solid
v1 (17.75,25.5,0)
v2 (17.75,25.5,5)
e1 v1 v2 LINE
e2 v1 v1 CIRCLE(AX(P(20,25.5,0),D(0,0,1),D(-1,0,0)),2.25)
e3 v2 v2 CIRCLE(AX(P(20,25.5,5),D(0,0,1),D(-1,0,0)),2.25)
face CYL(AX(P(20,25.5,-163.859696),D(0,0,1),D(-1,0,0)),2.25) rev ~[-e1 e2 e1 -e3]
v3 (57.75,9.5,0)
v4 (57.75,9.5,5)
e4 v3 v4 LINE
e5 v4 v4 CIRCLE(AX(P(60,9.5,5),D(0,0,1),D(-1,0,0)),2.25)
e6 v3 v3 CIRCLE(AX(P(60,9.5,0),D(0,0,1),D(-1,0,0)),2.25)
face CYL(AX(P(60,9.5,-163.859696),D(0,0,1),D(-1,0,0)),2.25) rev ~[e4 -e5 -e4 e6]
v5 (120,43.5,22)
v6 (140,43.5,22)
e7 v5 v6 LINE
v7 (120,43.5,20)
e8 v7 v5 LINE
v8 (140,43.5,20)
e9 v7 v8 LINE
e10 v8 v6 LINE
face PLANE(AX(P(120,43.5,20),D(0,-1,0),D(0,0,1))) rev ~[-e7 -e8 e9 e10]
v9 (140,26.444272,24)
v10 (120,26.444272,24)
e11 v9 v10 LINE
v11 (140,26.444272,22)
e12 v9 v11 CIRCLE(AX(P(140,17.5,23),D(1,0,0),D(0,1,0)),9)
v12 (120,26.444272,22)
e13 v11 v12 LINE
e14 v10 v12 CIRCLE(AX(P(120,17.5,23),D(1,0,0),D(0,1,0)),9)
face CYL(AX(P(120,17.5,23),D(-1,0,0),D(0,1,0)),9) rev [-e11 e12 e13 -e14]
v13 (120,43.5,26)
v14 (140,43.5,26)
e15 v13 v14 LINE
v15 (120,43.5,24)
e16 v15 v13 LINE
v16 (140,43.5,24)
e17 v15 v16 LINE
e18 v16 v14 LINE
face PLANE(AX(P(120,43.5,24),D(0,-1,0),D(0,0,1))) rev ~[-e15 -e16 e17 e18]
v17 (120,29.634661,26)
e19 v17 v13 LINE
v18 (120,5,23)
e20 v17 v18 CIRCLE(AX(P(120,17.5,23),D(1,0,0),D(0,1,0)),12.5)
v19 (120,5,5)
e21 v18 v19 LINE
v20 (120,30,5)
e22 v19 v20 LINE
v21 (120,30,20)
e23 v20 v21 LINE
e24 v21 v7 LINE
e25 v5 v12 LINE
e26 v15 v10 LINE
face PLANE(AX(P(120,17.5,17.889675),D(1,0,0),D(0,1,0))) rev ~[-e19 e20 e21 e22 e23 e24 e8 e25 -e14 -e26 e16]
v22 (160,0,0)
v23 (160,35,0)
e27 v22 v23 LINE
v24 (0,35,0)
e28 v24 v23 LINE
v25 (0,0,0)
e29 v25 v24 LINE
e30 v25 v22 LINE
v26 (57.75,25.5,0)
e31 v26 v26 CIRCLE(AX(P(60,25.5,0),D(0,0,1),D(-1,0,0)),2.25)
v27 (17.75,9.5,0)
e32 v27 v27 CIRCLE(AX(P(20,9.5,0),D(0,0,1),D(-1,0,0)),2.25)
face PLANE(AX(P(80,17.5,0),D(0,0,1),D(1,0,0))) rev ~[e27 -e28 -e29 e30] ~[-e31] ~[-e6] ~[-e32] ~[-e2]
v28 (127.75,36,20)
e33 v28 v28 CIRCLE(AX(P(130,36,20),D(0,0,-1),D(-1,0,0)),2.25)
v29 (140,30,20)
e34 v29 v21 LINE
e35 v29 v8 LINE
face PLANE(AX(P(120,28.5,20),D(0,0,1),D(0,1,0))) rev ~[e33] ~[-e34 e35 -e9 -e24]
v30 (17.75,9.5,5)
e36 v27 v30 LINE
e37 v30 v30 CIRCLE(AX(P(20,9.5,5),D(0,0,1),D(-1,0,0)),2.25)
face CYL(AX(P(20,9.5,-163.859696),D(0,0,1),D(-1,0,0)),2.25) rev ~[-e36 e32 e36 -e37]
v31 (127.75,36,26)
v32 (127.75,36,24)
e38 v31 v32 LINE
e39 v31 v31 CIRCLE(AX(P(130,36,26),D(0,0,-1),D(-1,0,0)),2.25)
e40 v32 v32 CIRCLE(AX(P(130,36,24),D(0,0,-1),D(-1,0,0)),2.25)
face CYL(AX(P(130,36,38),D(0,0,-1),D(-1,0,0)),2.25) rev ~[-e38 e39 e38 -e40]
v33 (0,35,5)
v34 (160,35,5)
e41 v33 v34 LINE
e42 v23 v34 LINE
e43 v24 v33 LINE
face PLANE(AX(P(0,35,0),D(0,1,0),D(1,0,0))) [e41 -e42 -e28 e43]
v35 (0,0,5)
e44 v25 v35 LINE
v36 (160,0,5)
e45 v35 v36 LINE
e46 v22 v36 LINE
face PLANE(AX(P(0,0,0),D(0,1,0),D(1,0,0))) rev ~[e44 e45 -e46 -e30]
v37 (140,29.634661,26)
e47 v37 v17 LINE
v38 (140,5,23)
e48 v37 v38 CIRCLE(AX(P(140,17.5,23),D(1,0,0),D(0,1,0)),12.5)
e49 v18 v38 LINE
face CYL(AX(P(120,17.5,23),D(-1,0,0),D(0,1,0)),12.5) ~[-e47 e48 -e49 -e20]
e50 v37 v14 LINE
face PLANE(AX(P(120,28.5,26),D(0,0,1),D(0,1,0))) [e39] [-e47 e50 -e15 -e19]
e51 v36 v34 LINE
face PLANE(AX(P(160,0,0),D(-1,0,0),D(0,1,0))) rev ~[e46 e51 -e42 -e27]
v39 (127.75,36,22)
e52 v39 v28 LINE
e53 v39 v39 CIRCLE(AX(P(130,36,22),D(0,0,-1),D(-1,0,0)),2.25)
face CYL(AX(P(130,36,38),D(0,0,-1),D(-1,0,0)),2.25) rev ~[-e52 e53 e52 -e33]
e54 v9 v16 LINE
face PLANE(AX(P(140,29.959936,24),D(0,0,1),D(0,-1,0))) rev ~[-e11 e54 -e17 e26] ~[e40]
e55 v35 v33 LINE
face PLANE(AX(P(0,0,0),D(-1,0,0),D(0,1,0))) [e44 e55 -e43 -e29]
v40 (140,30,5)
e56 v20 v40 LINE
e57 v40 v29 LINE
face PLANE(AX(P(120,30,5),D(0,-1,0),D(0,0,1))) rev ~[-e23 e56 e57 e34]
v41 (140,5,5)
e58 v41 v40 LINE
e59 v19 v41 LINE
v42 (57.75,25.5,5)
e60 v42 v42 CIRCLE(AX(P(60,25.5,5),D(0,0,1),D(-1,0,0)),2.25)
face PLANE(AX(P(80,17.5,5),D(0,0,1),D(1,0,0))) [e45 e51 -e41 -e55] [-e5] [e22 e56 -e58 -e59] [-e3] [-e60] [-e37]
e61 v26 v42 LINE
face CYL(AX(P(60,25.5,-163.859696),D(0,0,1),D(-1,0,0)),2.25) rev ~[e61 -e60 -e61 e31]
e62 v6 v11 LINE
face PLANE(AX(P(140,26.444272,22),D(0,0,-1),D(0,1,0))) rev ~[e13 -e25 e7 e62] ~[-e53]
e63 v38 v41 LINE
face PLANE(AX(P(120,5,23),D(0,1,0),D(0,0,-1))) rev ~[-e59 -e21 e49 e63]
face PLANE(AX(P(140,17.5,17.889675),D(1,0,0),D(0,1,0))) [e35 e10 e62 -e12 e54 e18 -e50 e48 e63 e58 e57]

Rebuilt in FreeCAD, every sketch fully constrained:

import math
import FreeCAD as App
import Part
import Sketcher

doc = App.newDocument("Part")
body = doc.addObject("PartDesign::Body", "Body")

# Sketch on XY plane
sketch1 = doc.addObject("Sketcher::SketchObject", "Sketch")
body.addObject(sketch1)
sketch1.AttachmentSupport = (doc.XY_Plane, [""])
sketch1.MapMode = "FlatFace"
sketch1.addGeometry([
    Part.LineSegment(App.Vector(0, 35, 0), App.Vector(0, 0, 0)),
    Part.LineSegment(App.Vector(0, 0, 0), App.Vector(160, 0, 0)),
    Part.LineSegment(App.Vector(160, 0, 0), App.Vector(160, 35, 0)),
    Part.LineSegment(App.Vector(160, 35, 0), App.Vector(0, 35, 0)),
], False)
sketch1.addConstraint([
    Sketcher.Constraint("Coincident", 0, 2, 1, 1),
    Sketcher.Constraint("Coincident", 1, 2, 2, 1),
    Sketcher.Constraint("Coincident", 2, 2, 3, 1),
    Sketcher.Constraint("Coincident", 3, 2, 0, 1),
    Sketcher.Constraint("Vertical", 0),
    Sketcher.Constraint("Horizontal", 1),
    Sketcher.Constraint("Vertical", 2),
    Sketcher.Constraint("Horizontal", 3),
    Sketcher.Constraint("Coincident", 0, 2, -1, 1),
    Sketcher.Constraint("DistanceX", 1, 1, 1, 2, 160.0),
    Sketcher.Constraint("DistanceY", 0, 2, 0, 1, 35.0),
])
pad1 = doc.addObject("PartDesign::Pad", "Pad")
body.addObject(pad1)
pad1.Profile = sketch1
pad1.Length = 5

# Sketch on XY plane
sketch2 = doc.addObject("Sketcher::SketchObject", "Sketch001")
body.addObject(sketch2)
sketch2.AttachmentSupport = (doc.XY_Plane, [""])
sketch2.MapMode = "FlatFace"
sketch2.addGeometry([
    Part.Circle(App.Vector(20, 9.5, 0), App.Vector(0, 0, 1), 2.2),
    Part.Circle(App.Vector(60, 9.5, 0), App.Vector(0, 0, 1), 2.2),
    Part.Circle(App.Vector(60, 25.5, 0), App.Vector(0, 0, 1), 2.2),
    Part.Circle(App.Vector(20, 25.5, 0), App.Vector(0, 0, 1), 2.2),
], False)
sketch2.addConstraint([
    Sketcher.Constraint("Equal", 0, 1),
    Sketcher.Constraint("Equal", 1, 2),
    Sketcher.Constraint("Equal", 2, 3),
    Sketcher.Constraint("Horizontal", 0, 3, 1, 3),
    Sketcher.Constraint("Horizontal", 2, 3, 3, 3),
    Sketcher.Constraint("Vertical", 1, 3, 2, 3),
    Sketcher.Constraint("Vertical", 0, 3, 3, 3),
    Sketcher.Constraint("Diameter", 0, 4.5),
    Sketcher.Constraint("DistanceX", -1, 1, 0, 3, 20.0),
    Sketcher.Constraint("DistanceX", -1, 1, 1, 3, 60.0),
    Sketcher.Constraint("DistanceY", 1, 3, 2, 3, 16.0),
    Sketcher.Constraint("DistanceY", -1, 1, 0, 3, 9.5),
])
doc.recompute()
hole = doc.addObject("PartDesign::Hole", "Hole")
body.addObject(hole)
hole.Profile = sketch2
hole.ThreadType = "None"
hole.Diameter = 4.5
hole.DepthType = "ThroughAll"
hole.Reversed = True

# Sketch on YZ plane
sketch3 = doc.addObject("Sketcher::SketchObject", "Sketch002")
body.addObject(sketch3)
sketch3.AttachmentSupport = (doc.YZ_Plane, [""])
sketch3.MapMode = "FlatFace"
sketch3.AttachmentOffset = App.Placement(App.Vector(0, 0, 120), App.Rotation())
sketch3.addGeometry([
    Part.LineSegment(App.Vector(5, 23, 0), App.Vector(5, 5, 0)),  # 0
    Part.LineSegment(App.Vector(5, 5, 0), App.Vector(30, 5, 0)),  # 1
    Part.LineSegment(App.Vector(30, 5, 0), App.Vector(30, 23, 0)),  # 2
    Part.ArcOfCircle(Part.Circle(App.Vector(18, 23, 0), App.Vector(0, 0, 1), 12), math.radians(0), math.radians(180)),  # 3
    Part.Circle(App.Vector(18, 23, 0), App.Vector(0, 0, 1), 9),  # 4
], False)
sketch3.addConstraint([
    Sketcher.Constraint("Coincident", 0, 2, 1, 1),
    Sketcher.Constraint("Coincident", 1, 2, 2, 1),
    Sketcher.Constraint("Tangent", 2, 2, 3, 1),
    Sketcher.Constraint("Tangent", 3, 2, 0, 1),
    Sketcher.Constraint("Vertical", 0),
    Sketcher.Constraint("Horizontal", 1),
    Sketcher.Constraint("Vertical", 2),
    Sketcher.Constraint("Coincident", 4, 3, 3, 3),
    Sketcher.Constraint("Diameter", 4, 18.0),
    Sketcher.Constraint("Radius", 3, 12.5),
    Sketcher.Constraint("DistanceY", 0, 2, 0, 1, 18.0),
    Sketcher.Constraint("DistanceY", -1, 1, 3, 3, 23.0),
    Sketcher.Constraint("DistanceX", -1, 1, 0, 2, 5.0),
])
pad2 = doc.addObject("PartDesign::Pad", "Pad001")
body.addObject(pad2)
pad2.Profile = sketch3
pad2.Length = 20

# Sketch on YZ plane
sketch4 = doc.addObject("Sketcher::SketchObject", "Sketch003")
body.addObject(sketch4)
sketch4.AttachmentSupport = (doc.YZ_Plane, [""])
sketch4.MapMode = "FlatFace"
sketch4.AttachmentOffset = App.Placement(App.Vector(0, 0, 140), App.Rotation())
sketch4.addGeometry([
    Part.LineSegment(App.Vector(30, 24, 0), App.Vector(26.4, 24, 0)),  # 0
    Part.ArcOfCircle(Part.Circle(App.Vector(17.5, 23, 0), App.Vector(0, 0, 1), 9), math.radians(0), math.radians(6.38)),  # 1
    Part.ArcOfCircle(Part.Circle(App.Vector(17.5, 23, 0), App.Vector(0, 0, 1), 9), math.radians(-6.38), math.radians(0)),  # 2
    Part.LineSegment(App.Vector(26.4, 22, 0), App.Vector(30, 22, 0)),  # 3
    Part.LineSegment(App.Vector(30, 22, 0), App.Vector(30, 23, 0)),  # 4
    Part.ArcOfCircle(Part.Circle(App.Vector(17.5, 23, 0), App.Vector(0, 0, 1), 12.5), math.radians(0), math.radians(4.59)),  # 5
], False)
sketch4.addConstraint([
    Sketcher.Constraint("Coincident", 0, 2, 1, 2),
    Sketcher.Constraint("Tangent", 1, 1, 2, 2),
    Sketcher.Constraint("Coincident", 2, 1, 3, 1),
    Sketcher.Constraint("Coincident", 3, 2, 4, 1),
    Sketcher.Constraint("Tangent", 4, 2, 5, 1),
    Sketcher.Constraint("Coincident", 5, 2, 0, 1),
    Sketcher.Constraint("Horizontal", 0),
    Sketcher.Constraint("Horizontal", 3),
    Sketcher.Constraint("Vertical", 4),
    Sketcher.Constraint("Coincident", 5, 3, 1, 3),
    Sketcher.Constraint("Equal", 1, 2),
    Sketcher.Constraint("Horizontal", 5, 3, 1, 1),
    Sketcher.Constraint("Vertical", 0, 2, 2, 1),
    Sketcher.Constraint("Radius", 1, 9.0),
    Sketcher.Constraint("Radius", 5, 12.5),
    Sketcher.Constraint("DistanceY", 4, 1, 4, 2, 1.0),
    Sketcher.Constraint("DistanceY", -1, 1, 1, 3, 23.0),
    Sketcher.Constraint("DistanceX", -1, 1, 3, 2, 30.0),
])
pocket1 = doc.addObject("PartDesign::Pocket", "Pocket")
body.addObject(pocket1)
pocket1.Profile = sketch4
pocket1.Length = 25

# Sketch on YZ plane
sketch5 = doc.addObject("Sketcher::SketchObject", "Sketch004")
body.addObject(sketch5)
sketch5.AttachmentSupport = (doc.YZ_Plane, [""])
sketch5.MapMode = "FlatFace"
sketch5.AttachmentOffset = App.Placement(App.Vector(0, 0, 120), App.Rotation())
sketch5.addGeometry([
    Part.LineSegment(App.Vector(28.5, 22, 0), App.Vector(28.5, 20, 0)),  # 0
    Part.LineSegment(App.Vector(28.5, 20, 0), App.Vector(43.5, 20, 0)),  # 1
    Part.LineSegment(App.Vector(43.5, 20, 0), App.Vector(43.5, 22, 0)),  # 2
    Part.LineSegment(App.Vector(43.5, 22, 0), App.Vector(28.5, 22, 0)),  # 3
    Part.LineSegment(App.Vector(28.5, 26, 0), App.Vector(28.5, 24, 0)),  # 4
    Part.LineSegment(App.Vector(28.5, 24, 0), App.Vector(43.5, 24, 0)),  # 5
    Part.LineSegment(App.Vector(43.5, 24, 0), App.Vector(43.5, 26, 0)),  # 6
    Part.LineSegment(App.Vector(43.5, 26, 0), App.Vector(28.5, 26, 0)),  # 7
], False)
sketch5.addConstraint([
    Sketcher.Constraint("Coincident", 0, 2, 1, 1),
    Sketcher.Constraint("Coincident", 1, 2, 2, 1),
    Sketcher.Constraint("Coincident", 2, 2, 3, 1),
    Sketcher.Constraint("Coincident", 3, 2, 0, 1),
    Sketcher.Constraint("Coincident", 4, 2, 5, 1),
    Sketcher.Constraint("Coincident", 5, 2, 6, 1),
    Sketcher.Constraint("Coincident", 6, 2, 7, 1),
    Sketcher.Constraint("Coincident", 7, 2, 4, 1),
    Sketcher.Constraint("Vertical", 0),
    Sketcher.Constraint("Horizontal", 1),
    Sketcher.Constraint("Vertical", 2),
    Sketcher.Constraint("Horizontal", 3),
    Sketcher.Constraint("Vertical", 4),
    Sketcher.Constraint("Horizontal", 5),
    Sketcher.Constraint("Vertical", 6),
    Sketcher.Constraint("Horizontal", 7),
    Sketcher.Constraint("Vertical", 3, 2, 4, 2),
    Sketcher.Constraint("Vertical", 2, 2, 5, 2),
    Sketcher.Constraint("Equal", 2, 4),
    Sketcher.Constraint("DistanceX", 1, 1, 1, 2, 15.0),
    Sketcher.Constraint("DistanceY", 0, 2, 0, 1, 2.0),
    Sketcher.Constraint("DistanceY", -1, 1, 0, 2, 20.0),
    Sketcher.Constraint("DistanceY", -1, 1, 4, 2, 24.0),
    Sketcher.Constraint("DistanceX", -1, 1, 0, 2, 28.5),
])
pad3 = doc.addObject("PartDesign::Pad", "Pad002")
body.addObject(pad3)
pad3.Profile = sketch5
pad3.Length = 20

# Sketch on XY plane
sketch6 = doc.addObject("Sketcher::SketchObject", "Sketch005")
body.addObject(sketch6)
sketch6.AttachmentSupport = (doc.XY_Plane, [""])
sketch6.MapMode = "FlatFace"
sketch6.AttachmentOffset = App.Placement(App.Vector(0, 0, 26), App.Rotation())
sketch6.addGeometry(Part.Circle(App.Vector(130, 36, 0), App.Vector(0, 0, 1), 2.2), False)
sketch6.addConstraint([
    Sketcher.Constraint("Diameter", 0, 4.5),
    Sketcher.Constraint("DistanceX", -1, 1, 0, 3, 130.0),
    Sketcher.Constraint("DistanceY", -1, 1, 0, 3, 36.0),
])
doc.recompute()
hole2 = doc.addObject("PartDesign::Hole", "Hole001")
body.addObject(hole2)
hole2.Profile = sketch6
hole2.ThreadType = "None"
hole2.Diameter = 4.5
hole2.DepthType = "Dimension"
hole2.Depth = 12
hole2.DrillPoint = "Angled"
hole2.DrillPointAngle = 118

doc.recompute()
